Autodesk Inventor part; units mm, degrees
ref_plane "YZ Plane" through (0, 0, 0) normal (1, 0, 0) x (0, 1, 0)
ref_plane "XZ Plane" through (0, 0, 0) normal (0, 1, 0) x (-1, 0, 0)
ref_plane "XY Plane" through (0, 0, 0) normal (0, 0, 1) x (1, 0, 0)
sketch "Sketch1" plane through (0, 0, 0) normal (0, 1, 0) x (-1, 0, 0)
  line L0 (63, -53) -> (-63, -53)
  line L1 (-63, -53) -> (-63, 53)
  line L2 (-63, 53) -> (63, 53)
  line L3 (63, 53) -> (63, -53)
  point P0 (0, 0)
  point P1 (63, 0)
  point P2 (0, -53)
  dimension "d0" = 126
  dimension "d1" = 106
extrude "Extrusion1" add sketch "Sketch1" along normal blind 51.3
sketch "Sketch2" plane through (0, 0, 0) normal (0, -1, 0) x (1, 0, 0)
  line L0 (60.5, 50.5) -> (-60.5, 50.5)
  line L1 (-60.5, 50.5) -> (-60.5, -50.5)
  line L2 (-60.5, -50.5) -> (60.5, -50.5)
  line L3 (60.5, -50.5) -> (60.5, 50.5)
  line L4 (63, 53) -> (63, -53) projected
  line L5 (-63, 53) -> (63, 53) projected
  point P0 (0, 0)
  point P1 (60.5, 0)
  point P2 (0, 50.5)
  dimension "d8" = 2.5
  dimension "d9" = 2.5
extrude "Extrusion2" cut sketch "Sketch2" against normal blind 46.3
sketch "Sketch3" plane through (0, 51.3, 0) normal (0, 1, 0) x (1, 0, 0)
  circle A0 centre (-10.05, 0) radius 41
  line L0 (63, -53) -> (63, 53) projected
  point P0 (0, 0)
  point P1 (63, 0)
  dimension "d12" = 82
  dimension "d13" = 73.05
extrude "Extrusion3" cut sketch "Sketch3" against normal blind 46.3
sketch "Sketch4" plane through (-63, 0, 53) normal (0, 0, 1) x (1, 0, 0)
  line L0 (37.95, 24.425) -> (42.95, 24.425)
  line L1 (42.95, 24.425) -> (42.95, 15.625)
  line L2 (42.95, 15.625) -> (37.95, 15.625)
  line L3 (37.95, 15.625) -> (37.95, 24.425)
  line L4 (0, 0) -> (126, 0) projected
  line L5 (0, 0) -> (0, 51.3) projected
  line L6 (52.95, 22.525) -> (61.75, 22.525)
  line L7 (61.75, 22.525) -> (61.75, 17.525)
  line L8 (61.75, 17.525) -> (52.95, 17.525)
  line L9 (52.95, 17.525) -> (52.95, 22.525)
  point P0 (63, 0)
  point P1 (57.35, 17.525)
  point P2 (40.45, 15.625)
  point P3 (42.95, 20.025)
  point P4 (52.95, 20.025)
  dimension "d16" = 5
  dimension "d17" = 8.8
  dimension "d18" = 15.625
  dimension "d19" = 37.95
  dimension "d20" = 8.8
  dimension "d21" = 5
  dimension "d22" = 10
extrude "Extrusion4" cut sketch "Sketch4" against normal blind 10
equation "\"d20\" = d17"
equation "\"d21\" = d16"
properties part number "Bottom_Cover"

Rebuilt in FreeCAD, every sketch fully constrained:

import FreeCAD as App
import Part
import Sketcher
from FreeCAD import Vector
Q = App.Units.Quantity

doc = App.newDocument("Part")
params = doc.addObject("Spreadsheet::Sheet", "Params")
for row, (alias, value) in enumerate([
    ("sketch1_width", "126 mm"),
    ("sketch1_height", "106 mm"),
    ("pad1_length", "51.3 mm"),
    ("sketch2_width", "121 mm"),
    ("sketch2_height", "101 mm"),
    ("pocket1_length", "46.3 mm"),
    ("sketch3_diameter", "82 mm"),
    ("pocket2_length", "46.3 mm"),
    ("sketch4_width", "5 mm"),
    ("sketch4_width2", "8.8 mm"),
    ("pocket3_length", "10 mm"),
], start=1):
    params.set(f"A{row}", alias)
    params.set(f"B{row}", "=" + value)
    params.setAlias(f"B{row}", alias)

body = doc.addObject("PartDesign::Body", "Body")

# Sketch on XZ plane
sketch1 = body.newObject("Sketcher::SketchObject", "Sketch")
sketch1.AttachmentSupport = (doc.getObject("XZ_Plane"), [""])
sketch1.MapMode = "FlatFace"
sketch1.addGeometry([
    Part.LineSegment(Vector(63, -53, 0), Vector(-63, -53, 0)),
    Part.LineSegment(Vector(-63, -53, 0), Vector(-63, 53, 0)),
    Part.LineSegment(Vector(-63, 53, 0), Vector(63, 53, 0)),
    Part.LineSegment(Vector(63, 53, 0), Vector(63, -53, 0)),
], False)
sketch1.addConstraint([
    Sketcher.Constraint("Coincident", 0, 2, 1, 1),
    Sketcher.Constraint("Coincident", 1, 2, 2, 1),
    Sketcher.Constraint("Coincident", 2, 2, 3, 1),
    Sketcher.Constraint("Coincident", 3, 2, 0, 1),
    Sketcher.Constraint("Horizontal", 0),
    Sketcher.Constraint("Vertical", 1),
    Sketcher.Constraint("Horizontal", 2),
    Sketcher.Constraint("Vertical", 3),
    Sketcher.Constraint("Symmetric", 0, 2, 2, 2, -1, 1),
    Sketcher.Constraint("DistanceX", 0, 2, 0, 1, Q("126 mm")),
    Sketcher.Constraint("DistanceY", 1, 1, 1, 2, Q("106 mm")),
])
sketch1.setExpression("Constraints[9]", "Params.sketch1_width")
sketch1.setExpression("Constraints[10]", "Params.sketch1_height")
pad1 = body.newObject("PartDesign::Pad", "Pad")
pad1.Profile = sketch1
pad1.setExpression("Length", "Params.pad1_length")
pad1.Reversed = True

# Sketch on XZ plane
sketch2 = body.newObject("Sketcher::SketchObject", "Sketch001")
sketch2.AttachmentSupport = (doc.getObject("XZ_Plane"), [""])
sketch2.MapMode = "FlatFace"
sketch2.addGeometry([
    Part.LineSegment(Vector(60, -50, 0), Vector(60, 50, 0)),
    Part.LineSegment(Vector(60, 50, 0), Vector(-60, 50, 0)),
    Part.LineSegment(Vector(-60, 50, 0), Vector(-60, -50, 0)),
    Part.LineSegment(Vector(-60, -50, 0), Vector(60, -50, 0)),
], False)
sketch2.addConstraint([
    Sketcher.Constraint("Coincident", 0, 2, 1, 1),
    Sketcher.Constraint("Coincident", 1, 2, 2, 1),
    Sketcher.Constraint("Coincident", 2, 2, 3, 1),
    Sketcher.Constraint("Coincident", 3, 2, 0, 1),
    Sketcher.Constraint("Vertical", 0),
    Sketcher.Constraint("Horizontal", 1),
    Sketcher.Constraint("Vertical", 2),
    Sketcher.Constraint("Horizontal", 3),
    Sketcher.Constraint("Symmetric", 0, 2, 2, 2, -1, 1),
    Sketcher.Constraint("DistanceX", 1, 2, 1, 1, Q("121 mm")),
    Sketcher.Constraint("DistanceY", 0, 1, 0, 2, Q("101 mm")),
])
sketch2.setExpression("Constraints[9]", "Params.sketch2_width")
sketch2.setExpression("Constraints[10]", "Params.sketch2_height")
pocket1 = body.newObject("PartDesign::Pocket", "Pocket")
pocket1.Profile = sketch2
pocket1.setExpression("Length", "Params.pocket1_length")

# Sketch on XZ plane
sketch3 = body.newObject("Sketcher::SketchObject", "Sketch002")
sketch3.AttachmentSupport = (doc.getObject("XZ_Plane"), [""])
sketch3.MapMode = "FlatFace"
sketch3.AttachmentOffset = App.Placement(Vector(0, 0, -51.3), App.Rotation())
sketch3.addGeometry(Part.Circle(Vector(-10, 0, 0), Vector(0, 0, 1), 41), False)
sketch3.addConstraint([
    Sketcher.Constraint("PointOnObject", 0, 3, -1),
    Sketcher.Constraint("Diameter", 0, Q("82 mm")),
    Sketcher.Constraint("DistanceX", 0, 3, -1, 1, Q("10.05 mm")),
])
sketch3.setExpression("Constraints[1]", "Params.sketch3_diameter")
pocket2 = body.newObject("PartDesign::Pocket", "Pocket001")
pocket2.Profile = sketch3
pocket2.setExpression("Length", "Params.pocket2_length")
pocket2.Reversed = True

# Sketch on XY plane
sketch4 = body.newObject("Sketcher::SketchObject", "Sketch003")
sketch4.AttachmentSupport = (doc.getObject("XY_Plane"), [""])
sketch4.MapMode = "FlatFace"
sketch4.AttachmentOffset = App.Placement(Vector(0, 0, 53), App.Rotation())
sketch4.addGeometry([
    Part.LineSegment(Vector(-20, 24, 0), Vector(-25, 24, 0)),  # 0
    Part.LineSegment(Vector(-25, 24, 0), Vector(-25, 16, 0)),  # 1
    Part.LineSegment(Vector(-25, 16, 0), Vector(-20, 16, 0)),  # 2
    Part.LineSegment(Vector(-20, 16, 0), Vector(-20, 24, 0)),  # 3
    Part.LineSegment(Vector(-1, 23, 0), Vector(-10, 23, 0)),  # 4
    Part.LineSegment(Vector(-10, 23, 0), Vector(-10, 18, 0)),  # 5
    Part.LineSegment(Vector(-10, 18, 0), Vector(-1, 18, 0)),  # 6
    Part.LineSegment(Vector(-1, 18, 0), Vector(-1, 23, 0)),  # 7
], False)
sketch4.addConstraint([
    Sketcher.Constraint("Coincident", 0, 2, 1, 1),
    Sketcher.Constraint("Coincident", 1, 2, 2, 1),
    Sketcher.Constraint("Coincident", 2, 2, 3, 1),
    Sketcher.Constraint("Coincident", 3, 2, 0, 1),
    Sketcher.Constraint("Coincident", 4, 2, 5, 1),
    Sketcher.Constraint("Coincident", 5, 2, 6, 1),
    Sketcher.Constraint("Coincident", 6, 2, 7, 1),
    Sketcher.Constraint("Coincident", 7, 2, 4, 1),
    Sketcher.Constraint("Horizontal", 0),
    Sketcher.Constraint("Vertical", 1),
    Sketcher.Constraint("Horizontal", 2),
    Sketcher.Constraint("Vertical", 3),
    Sketcher.Constraint("Horizontal", 4),
    Sketcher.Constraint("Vertical", 5),
    Sketcher.Constraint("Horizontal", 6),
    Sketcher.Constraint("Vertical", 7),
    Sketcher.Constraint("Equal", 6, 1),
    Sketcher.Constraint("Equal", 2, 5),
    Sketcher.Constraint("DistanceX", 0, 2, 0, 1, Q("5 mm")),
    Sketcher.Constraint("DistanceX", 4, 2, 4, 1, Q("8.8 mm")),
    Sketcher.Constraint("DistanceX", 3, 2, 4, 2, Q("10 mm")),
    Sketcher.Constraint("DistanceY", -1, 1, 1, 2, Q("15.625 mm")),
    Sketcher.Constraint("DistanceY", 4, 2, 3, 2, Q("1.9 mm")),
    Sketcher.Constraint("DistanceX", 0, 2, -1, 1, Q("25.05 mm")),
])
sketch4.setExpression("Constraints[18]", "Params.sketch4_width")
sketch4.setExpression("Constraints[19]", "Params.sketch4_width2")
pocket3 = body.newObject("PartDesign::Pocket", "Pocket002")
pocket3.Profile = sketch4
pocket3.setExpression("Length", "Params.pocket3_length")

doc.recompute()
